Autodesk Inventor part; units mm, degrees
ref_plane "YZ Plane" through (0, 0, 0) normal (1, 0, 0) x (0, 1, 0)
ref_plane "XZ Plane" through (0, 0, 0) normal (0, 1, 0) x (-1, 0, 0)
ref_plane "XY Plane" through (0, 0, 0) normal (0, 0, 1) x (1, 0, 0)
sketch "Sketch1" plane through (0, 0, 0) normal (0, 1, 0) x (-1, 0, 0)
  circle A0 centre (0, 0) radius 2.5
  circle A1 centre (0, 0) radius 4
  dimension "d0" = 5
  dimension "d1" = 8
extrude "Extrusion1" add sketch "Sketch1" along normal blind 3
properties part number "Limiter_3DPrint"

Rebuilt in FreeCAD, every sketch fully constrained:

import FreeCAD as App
import Part
import Sketcher

V = App.Vector
Q = App.Units.Quantity

doc = App.newDocument("Part")
params = doc.addObject("Spreadsheet::Sheet", "Params")
for row, (alias, value) in enumerate([
    ("sketch1_diameter", "8 mm"),
    ("sketch1_diameter2", "5 mm"),
    ("pad1_length", "3 mm"),
], start=1):
    params.set(f"A{row}", alias)
    params.set(f"B{row}", "=" + value)
    params.setAlias(f"B{row}", alias)

body = doc.addObject("PartDesign::Body", "Body")

# Sketch on XZ plane
sketch1 = body.newObject("Sketcher::SketchObject", "Sketch")
sketch1.AttachmentSupport = (doc.getObject("XZ_Plane"), [""])
sketch1.MapMode = "FlatFace"
sketch1.addGeometry([
    Part.Circle(V(0, 0, 0), V(0, 0, 1), 4),
    Part.Circle(V(0, 0, 0), V(0, 0, 1), 2.5),
], False)
sketch1.addConstraint([
    Sketcher.Constraint("Coincident", 0, 3, -1, 1),
    Sketcher.Constraint("Coincident", 1, 3, -1, 1),
    Sketcher.Constraint("Diameter", 0, Q("8 mm")),
    Sketcher.Constraint("Diameter", 1, Q("5 mm")),
])
sketch1.setExpression("Constraints[2]", "Params.sketch1_diameter")
sketch1.setExpression("Constraints[3]", "Params.sketch1_diameter2")
pad1 = body.newObject("PartDesign::Pad", "Pad")
pad1.Profile = sketch1
pad1.setExpression("Length", "Params.pad1_length")
pad1.Reversed = True

doc.recompute()
